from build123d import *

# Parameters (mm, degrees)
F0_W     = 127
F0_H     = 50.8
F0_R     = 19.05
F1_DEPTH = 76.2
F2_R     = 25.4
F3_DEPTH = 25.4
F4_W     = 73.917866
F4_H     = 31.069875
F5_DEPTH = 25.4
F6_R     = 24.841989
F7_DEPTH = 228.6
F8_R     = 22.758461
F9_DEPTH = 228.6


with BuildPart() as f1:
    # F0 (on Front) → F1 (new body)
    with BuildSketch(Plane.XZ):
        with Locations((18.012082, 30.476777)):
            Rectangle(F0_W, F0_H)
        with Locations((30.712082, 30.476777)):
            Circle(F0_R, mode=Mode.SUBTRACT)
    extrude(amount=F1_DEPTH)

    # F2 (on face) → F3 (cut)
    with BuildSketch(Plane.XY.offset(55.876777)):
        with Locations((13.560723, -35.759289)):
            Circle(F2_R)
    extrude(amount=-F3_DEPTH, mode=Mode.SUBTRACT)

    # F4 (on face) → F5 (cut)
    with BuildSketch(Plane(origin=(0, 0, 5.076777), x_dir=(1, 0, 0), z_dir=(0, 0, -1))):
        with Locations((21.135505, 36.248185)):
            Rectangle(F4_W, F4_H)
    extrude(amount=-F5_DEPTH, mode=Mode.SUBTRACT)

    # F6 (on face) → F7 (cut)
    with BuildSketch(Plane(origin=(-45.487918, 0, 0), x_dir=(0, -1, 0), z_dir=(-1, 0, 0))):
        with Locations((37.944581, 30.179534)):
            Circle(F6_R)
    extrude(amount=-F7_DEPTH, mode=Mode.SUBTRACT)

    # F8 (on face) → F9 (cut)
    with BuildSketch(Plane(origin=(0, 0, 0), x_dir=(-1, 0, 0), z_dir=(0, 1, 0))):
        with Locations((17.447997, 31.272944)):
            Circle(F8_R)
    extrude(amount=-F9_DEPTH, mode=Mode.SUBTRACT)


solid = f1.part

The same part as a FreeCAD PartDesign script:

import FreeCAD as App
import Part
import Sketcher

V = App.Vector
Q = App.Units.Quantity


def add_polygon(sketch, points):
    """Adds a closed chain of lines whose ends are joined by coincident constraints."""
    first, n = sketch.GeometryCount, len(points)
    for a, b in zip(points, points[1:] + points[:1]):
        sketch.addGeometry(Part.LineSegment(App.Vector(*a, 0), App.Vector(*b, 0)), False)
    for i in range(n):
        sketch.addConstraint(Sketcher.Constraint("Coincident", first + i, 2, first + (i + 1) % n, 1))

doc = App.newDocument("Part")
body = doc.addObject("PartDesign::Body", "Body")

# Sketch on XZ plane
sketch1 = body.newObject("Sketcher::SketchObject", "Sketch")
sketch1.AttachmentSupport = (doc.getObject("XZ_Plane"), [""])
sketch1.MapMode = "FlatFace"
add_polygon(sketch1, [(-45.487918, 55.876777), (-45.487918, 5.076777), (81.512082, 5.076777), (81.512082, 55.876777)])  # lines 0-3
sketch1.addGeometry(Part.Circle(V(30.712082, 30.476777, 0), V(0, 0, 1), 19.05), False)  # 4
sketch1.addConstraint([
    Sketcher.Constraint("Vertical", 0),
    Sketcher.Constraint("Horizontal", 1),
    Sketcher.Constraint("Vertical", 2),
    Sketcher.Constraint("Horizontal", 3),
    Sketcher.Constraint("Diameter", 4, Q("1.5 in")),
    Sketcher.Constraint("DistanceX", 1, 1, 1, 2, Q("5 in")),
    Sketcher.Constraint("DistanceY", 0, 2, 0, 1, Q("2 in")),
    Sketcher.Constraint("DistanceX", 0, 2, 4, 3, Q("3 in")),
    Sketcher.Constraint("DistanceY", 0, 2, 4, 3, Q("1 in")),
    Sketcher.Constraint("DistanceX", -1, 1, 4, 3, Q("30.712082 mm")),
    Sketcher.Constraint("DistanceY", -1, 1, 4, 3, Q("30.476777 mm")),
])
pad1 = body.newObject("PartDesign::Pad", "Pad")
pad1.Profile = sketch1
pad1.Length = Q("3 in")

# Sketch on XY plane
sketch2 = body.newObject("Sketcher::SketchObject", "Sketch001")
sketch2.AttachmentSupport = (doc.getObject("XY_Plane"), [""])
sketch2.MapMode = "FlatFace"
sketch2.AttachmentOffset = App.Placement(V(0, 0, 55.876777), App.Rotation())
sketch2.addGeometry(Part.Circle(V(13.560723, -35.759289, 0), V(0, 0, 1), 25.4), False)
sketch2.addConstraint([
    Sketcher.Constraint("Diameter", 0, Q("2 in")),
    Sketcher.Constraint("DistanceY", 0, 3, -1, 1, Q("35.759289 mm")),
    Sketcher.Constraint("DistanceX", -1, 1, 0, 3, Q("13.560723 mm")),
])
pocket1 = body.newObject("PartDesign::Pocket", "Pocket")
pocket1.Profile = sketch2
pocket1.Length = Q("1 in")

# Sketch on XY plane
sketch3 = body.newObject("Sketcher::SketchObject", "Sketch002")
sketch3.AttachmentSupport = (doc.getObject("XY_Plane"), [""])
sketch3.MapMode = "FlatFace"
sketch3.AttachmentOffset = App.Placement(V(0, 0, 5.076777), App.Rotation())
add_polygon(sketch3, [(-15.823428, -51.783122), (-15.823428, -20.713248), (58.094438, -20.713248), (58.094438, -51.783122)])  # lines 0-3
sketch3.addConstraint([
    Sketcher.Constraint("Vertical", 0),
    Sketcher.Constraint("Horizontal", 1),
    Sketcher.Constraint("Vertical", 2),
    Sketcher.Constraint("Horizontal", 3),
    Sketcher.Constraint("DistanceX", 1, 1, 1, 2, Q("73.917866 mm")),
    Sketcher.Constraint("DistanceY", 0, 1, 0, 2, Q("31.069875 mm")),
    Sketcher.Constraint("DistanceX", 0, 2, -1, 1, Q("15.823428 mm")),
    Sketcher.Constraint("DistanceY", 0, 2, -1, 1, Q("20.713248 mm")),
])
pocket2 = body.newObject("PartDesign::Pocket", "Pocket001")
pocket2.Profile = sketch3
pocket2.Length = Q("1 in")
pocket2.Reversed = True

# Sketch on YZ plane
sketch4 = body.newObject("Sketcher::SketchObject", "Sketch003")
sketch4.AttachmentSupport = (doc.getObject("YZ_Plane"), [""])
sketch4.MapMode = "FlatFace"
sketch4.AttachmentOffset = App.Placement(V(0, 0, -45.487918), App.Rotation())
sketch4.addGeometry(Part.Circle(V(-37.944581, 30.179534, 0), V(0, 0, 1), 24.841989), False)
sketch4.addConstraint([
    Sketcher.Constraint("Diameter", 0, Q("49.683978 mm")),
    Sketcher.Constraint("DistanceX", 0, 3, -1, 1, Q("37.944581 mm")),
    Sketcher.Constraint("DistanceY", -1, 1, 0, 3, Q("30.179534 mm")),
])
pocket3 = body.newObject("PartDesign::Pocket", "Pocket002")
pocket3.Profile = sketch4
pocket3.Length = Q("9 in")
pocket3.Reversed = True

# Sketch on XZ plane
sketch5 = body.newObject("Sketcher::SketchObject", "Sketch004")
sketch5.AttachmentSupport = (doc.getObject("XZ_Plane"), [""])
sketch5.MapMode = "FlatFace"
sketch5.addGeometry(Part.Circle(V(-17.447997, 31.272944, 0), V(0, 0, 1), 22.758461), False)
sketch5.addConstraint([
    Sketcher.Constraint("Diameter", 0, Q("45.516922 mm")),
    Sketcher.Constraint("DistanceX", 0, 3, -1, 1, Q("17.447997 mm")),
    Sketcher.Constraint("DistanceY", -1, 1, 0, 3, Q("31.272944 mm")),
])
pocket4 = body.newObject("PartDesign::Pocket", "Pocket003")
pocket4.Profile = sketch5
pocket4.Length = Q("9 in")
pocket4.Reversed = True

doc.recompute()
